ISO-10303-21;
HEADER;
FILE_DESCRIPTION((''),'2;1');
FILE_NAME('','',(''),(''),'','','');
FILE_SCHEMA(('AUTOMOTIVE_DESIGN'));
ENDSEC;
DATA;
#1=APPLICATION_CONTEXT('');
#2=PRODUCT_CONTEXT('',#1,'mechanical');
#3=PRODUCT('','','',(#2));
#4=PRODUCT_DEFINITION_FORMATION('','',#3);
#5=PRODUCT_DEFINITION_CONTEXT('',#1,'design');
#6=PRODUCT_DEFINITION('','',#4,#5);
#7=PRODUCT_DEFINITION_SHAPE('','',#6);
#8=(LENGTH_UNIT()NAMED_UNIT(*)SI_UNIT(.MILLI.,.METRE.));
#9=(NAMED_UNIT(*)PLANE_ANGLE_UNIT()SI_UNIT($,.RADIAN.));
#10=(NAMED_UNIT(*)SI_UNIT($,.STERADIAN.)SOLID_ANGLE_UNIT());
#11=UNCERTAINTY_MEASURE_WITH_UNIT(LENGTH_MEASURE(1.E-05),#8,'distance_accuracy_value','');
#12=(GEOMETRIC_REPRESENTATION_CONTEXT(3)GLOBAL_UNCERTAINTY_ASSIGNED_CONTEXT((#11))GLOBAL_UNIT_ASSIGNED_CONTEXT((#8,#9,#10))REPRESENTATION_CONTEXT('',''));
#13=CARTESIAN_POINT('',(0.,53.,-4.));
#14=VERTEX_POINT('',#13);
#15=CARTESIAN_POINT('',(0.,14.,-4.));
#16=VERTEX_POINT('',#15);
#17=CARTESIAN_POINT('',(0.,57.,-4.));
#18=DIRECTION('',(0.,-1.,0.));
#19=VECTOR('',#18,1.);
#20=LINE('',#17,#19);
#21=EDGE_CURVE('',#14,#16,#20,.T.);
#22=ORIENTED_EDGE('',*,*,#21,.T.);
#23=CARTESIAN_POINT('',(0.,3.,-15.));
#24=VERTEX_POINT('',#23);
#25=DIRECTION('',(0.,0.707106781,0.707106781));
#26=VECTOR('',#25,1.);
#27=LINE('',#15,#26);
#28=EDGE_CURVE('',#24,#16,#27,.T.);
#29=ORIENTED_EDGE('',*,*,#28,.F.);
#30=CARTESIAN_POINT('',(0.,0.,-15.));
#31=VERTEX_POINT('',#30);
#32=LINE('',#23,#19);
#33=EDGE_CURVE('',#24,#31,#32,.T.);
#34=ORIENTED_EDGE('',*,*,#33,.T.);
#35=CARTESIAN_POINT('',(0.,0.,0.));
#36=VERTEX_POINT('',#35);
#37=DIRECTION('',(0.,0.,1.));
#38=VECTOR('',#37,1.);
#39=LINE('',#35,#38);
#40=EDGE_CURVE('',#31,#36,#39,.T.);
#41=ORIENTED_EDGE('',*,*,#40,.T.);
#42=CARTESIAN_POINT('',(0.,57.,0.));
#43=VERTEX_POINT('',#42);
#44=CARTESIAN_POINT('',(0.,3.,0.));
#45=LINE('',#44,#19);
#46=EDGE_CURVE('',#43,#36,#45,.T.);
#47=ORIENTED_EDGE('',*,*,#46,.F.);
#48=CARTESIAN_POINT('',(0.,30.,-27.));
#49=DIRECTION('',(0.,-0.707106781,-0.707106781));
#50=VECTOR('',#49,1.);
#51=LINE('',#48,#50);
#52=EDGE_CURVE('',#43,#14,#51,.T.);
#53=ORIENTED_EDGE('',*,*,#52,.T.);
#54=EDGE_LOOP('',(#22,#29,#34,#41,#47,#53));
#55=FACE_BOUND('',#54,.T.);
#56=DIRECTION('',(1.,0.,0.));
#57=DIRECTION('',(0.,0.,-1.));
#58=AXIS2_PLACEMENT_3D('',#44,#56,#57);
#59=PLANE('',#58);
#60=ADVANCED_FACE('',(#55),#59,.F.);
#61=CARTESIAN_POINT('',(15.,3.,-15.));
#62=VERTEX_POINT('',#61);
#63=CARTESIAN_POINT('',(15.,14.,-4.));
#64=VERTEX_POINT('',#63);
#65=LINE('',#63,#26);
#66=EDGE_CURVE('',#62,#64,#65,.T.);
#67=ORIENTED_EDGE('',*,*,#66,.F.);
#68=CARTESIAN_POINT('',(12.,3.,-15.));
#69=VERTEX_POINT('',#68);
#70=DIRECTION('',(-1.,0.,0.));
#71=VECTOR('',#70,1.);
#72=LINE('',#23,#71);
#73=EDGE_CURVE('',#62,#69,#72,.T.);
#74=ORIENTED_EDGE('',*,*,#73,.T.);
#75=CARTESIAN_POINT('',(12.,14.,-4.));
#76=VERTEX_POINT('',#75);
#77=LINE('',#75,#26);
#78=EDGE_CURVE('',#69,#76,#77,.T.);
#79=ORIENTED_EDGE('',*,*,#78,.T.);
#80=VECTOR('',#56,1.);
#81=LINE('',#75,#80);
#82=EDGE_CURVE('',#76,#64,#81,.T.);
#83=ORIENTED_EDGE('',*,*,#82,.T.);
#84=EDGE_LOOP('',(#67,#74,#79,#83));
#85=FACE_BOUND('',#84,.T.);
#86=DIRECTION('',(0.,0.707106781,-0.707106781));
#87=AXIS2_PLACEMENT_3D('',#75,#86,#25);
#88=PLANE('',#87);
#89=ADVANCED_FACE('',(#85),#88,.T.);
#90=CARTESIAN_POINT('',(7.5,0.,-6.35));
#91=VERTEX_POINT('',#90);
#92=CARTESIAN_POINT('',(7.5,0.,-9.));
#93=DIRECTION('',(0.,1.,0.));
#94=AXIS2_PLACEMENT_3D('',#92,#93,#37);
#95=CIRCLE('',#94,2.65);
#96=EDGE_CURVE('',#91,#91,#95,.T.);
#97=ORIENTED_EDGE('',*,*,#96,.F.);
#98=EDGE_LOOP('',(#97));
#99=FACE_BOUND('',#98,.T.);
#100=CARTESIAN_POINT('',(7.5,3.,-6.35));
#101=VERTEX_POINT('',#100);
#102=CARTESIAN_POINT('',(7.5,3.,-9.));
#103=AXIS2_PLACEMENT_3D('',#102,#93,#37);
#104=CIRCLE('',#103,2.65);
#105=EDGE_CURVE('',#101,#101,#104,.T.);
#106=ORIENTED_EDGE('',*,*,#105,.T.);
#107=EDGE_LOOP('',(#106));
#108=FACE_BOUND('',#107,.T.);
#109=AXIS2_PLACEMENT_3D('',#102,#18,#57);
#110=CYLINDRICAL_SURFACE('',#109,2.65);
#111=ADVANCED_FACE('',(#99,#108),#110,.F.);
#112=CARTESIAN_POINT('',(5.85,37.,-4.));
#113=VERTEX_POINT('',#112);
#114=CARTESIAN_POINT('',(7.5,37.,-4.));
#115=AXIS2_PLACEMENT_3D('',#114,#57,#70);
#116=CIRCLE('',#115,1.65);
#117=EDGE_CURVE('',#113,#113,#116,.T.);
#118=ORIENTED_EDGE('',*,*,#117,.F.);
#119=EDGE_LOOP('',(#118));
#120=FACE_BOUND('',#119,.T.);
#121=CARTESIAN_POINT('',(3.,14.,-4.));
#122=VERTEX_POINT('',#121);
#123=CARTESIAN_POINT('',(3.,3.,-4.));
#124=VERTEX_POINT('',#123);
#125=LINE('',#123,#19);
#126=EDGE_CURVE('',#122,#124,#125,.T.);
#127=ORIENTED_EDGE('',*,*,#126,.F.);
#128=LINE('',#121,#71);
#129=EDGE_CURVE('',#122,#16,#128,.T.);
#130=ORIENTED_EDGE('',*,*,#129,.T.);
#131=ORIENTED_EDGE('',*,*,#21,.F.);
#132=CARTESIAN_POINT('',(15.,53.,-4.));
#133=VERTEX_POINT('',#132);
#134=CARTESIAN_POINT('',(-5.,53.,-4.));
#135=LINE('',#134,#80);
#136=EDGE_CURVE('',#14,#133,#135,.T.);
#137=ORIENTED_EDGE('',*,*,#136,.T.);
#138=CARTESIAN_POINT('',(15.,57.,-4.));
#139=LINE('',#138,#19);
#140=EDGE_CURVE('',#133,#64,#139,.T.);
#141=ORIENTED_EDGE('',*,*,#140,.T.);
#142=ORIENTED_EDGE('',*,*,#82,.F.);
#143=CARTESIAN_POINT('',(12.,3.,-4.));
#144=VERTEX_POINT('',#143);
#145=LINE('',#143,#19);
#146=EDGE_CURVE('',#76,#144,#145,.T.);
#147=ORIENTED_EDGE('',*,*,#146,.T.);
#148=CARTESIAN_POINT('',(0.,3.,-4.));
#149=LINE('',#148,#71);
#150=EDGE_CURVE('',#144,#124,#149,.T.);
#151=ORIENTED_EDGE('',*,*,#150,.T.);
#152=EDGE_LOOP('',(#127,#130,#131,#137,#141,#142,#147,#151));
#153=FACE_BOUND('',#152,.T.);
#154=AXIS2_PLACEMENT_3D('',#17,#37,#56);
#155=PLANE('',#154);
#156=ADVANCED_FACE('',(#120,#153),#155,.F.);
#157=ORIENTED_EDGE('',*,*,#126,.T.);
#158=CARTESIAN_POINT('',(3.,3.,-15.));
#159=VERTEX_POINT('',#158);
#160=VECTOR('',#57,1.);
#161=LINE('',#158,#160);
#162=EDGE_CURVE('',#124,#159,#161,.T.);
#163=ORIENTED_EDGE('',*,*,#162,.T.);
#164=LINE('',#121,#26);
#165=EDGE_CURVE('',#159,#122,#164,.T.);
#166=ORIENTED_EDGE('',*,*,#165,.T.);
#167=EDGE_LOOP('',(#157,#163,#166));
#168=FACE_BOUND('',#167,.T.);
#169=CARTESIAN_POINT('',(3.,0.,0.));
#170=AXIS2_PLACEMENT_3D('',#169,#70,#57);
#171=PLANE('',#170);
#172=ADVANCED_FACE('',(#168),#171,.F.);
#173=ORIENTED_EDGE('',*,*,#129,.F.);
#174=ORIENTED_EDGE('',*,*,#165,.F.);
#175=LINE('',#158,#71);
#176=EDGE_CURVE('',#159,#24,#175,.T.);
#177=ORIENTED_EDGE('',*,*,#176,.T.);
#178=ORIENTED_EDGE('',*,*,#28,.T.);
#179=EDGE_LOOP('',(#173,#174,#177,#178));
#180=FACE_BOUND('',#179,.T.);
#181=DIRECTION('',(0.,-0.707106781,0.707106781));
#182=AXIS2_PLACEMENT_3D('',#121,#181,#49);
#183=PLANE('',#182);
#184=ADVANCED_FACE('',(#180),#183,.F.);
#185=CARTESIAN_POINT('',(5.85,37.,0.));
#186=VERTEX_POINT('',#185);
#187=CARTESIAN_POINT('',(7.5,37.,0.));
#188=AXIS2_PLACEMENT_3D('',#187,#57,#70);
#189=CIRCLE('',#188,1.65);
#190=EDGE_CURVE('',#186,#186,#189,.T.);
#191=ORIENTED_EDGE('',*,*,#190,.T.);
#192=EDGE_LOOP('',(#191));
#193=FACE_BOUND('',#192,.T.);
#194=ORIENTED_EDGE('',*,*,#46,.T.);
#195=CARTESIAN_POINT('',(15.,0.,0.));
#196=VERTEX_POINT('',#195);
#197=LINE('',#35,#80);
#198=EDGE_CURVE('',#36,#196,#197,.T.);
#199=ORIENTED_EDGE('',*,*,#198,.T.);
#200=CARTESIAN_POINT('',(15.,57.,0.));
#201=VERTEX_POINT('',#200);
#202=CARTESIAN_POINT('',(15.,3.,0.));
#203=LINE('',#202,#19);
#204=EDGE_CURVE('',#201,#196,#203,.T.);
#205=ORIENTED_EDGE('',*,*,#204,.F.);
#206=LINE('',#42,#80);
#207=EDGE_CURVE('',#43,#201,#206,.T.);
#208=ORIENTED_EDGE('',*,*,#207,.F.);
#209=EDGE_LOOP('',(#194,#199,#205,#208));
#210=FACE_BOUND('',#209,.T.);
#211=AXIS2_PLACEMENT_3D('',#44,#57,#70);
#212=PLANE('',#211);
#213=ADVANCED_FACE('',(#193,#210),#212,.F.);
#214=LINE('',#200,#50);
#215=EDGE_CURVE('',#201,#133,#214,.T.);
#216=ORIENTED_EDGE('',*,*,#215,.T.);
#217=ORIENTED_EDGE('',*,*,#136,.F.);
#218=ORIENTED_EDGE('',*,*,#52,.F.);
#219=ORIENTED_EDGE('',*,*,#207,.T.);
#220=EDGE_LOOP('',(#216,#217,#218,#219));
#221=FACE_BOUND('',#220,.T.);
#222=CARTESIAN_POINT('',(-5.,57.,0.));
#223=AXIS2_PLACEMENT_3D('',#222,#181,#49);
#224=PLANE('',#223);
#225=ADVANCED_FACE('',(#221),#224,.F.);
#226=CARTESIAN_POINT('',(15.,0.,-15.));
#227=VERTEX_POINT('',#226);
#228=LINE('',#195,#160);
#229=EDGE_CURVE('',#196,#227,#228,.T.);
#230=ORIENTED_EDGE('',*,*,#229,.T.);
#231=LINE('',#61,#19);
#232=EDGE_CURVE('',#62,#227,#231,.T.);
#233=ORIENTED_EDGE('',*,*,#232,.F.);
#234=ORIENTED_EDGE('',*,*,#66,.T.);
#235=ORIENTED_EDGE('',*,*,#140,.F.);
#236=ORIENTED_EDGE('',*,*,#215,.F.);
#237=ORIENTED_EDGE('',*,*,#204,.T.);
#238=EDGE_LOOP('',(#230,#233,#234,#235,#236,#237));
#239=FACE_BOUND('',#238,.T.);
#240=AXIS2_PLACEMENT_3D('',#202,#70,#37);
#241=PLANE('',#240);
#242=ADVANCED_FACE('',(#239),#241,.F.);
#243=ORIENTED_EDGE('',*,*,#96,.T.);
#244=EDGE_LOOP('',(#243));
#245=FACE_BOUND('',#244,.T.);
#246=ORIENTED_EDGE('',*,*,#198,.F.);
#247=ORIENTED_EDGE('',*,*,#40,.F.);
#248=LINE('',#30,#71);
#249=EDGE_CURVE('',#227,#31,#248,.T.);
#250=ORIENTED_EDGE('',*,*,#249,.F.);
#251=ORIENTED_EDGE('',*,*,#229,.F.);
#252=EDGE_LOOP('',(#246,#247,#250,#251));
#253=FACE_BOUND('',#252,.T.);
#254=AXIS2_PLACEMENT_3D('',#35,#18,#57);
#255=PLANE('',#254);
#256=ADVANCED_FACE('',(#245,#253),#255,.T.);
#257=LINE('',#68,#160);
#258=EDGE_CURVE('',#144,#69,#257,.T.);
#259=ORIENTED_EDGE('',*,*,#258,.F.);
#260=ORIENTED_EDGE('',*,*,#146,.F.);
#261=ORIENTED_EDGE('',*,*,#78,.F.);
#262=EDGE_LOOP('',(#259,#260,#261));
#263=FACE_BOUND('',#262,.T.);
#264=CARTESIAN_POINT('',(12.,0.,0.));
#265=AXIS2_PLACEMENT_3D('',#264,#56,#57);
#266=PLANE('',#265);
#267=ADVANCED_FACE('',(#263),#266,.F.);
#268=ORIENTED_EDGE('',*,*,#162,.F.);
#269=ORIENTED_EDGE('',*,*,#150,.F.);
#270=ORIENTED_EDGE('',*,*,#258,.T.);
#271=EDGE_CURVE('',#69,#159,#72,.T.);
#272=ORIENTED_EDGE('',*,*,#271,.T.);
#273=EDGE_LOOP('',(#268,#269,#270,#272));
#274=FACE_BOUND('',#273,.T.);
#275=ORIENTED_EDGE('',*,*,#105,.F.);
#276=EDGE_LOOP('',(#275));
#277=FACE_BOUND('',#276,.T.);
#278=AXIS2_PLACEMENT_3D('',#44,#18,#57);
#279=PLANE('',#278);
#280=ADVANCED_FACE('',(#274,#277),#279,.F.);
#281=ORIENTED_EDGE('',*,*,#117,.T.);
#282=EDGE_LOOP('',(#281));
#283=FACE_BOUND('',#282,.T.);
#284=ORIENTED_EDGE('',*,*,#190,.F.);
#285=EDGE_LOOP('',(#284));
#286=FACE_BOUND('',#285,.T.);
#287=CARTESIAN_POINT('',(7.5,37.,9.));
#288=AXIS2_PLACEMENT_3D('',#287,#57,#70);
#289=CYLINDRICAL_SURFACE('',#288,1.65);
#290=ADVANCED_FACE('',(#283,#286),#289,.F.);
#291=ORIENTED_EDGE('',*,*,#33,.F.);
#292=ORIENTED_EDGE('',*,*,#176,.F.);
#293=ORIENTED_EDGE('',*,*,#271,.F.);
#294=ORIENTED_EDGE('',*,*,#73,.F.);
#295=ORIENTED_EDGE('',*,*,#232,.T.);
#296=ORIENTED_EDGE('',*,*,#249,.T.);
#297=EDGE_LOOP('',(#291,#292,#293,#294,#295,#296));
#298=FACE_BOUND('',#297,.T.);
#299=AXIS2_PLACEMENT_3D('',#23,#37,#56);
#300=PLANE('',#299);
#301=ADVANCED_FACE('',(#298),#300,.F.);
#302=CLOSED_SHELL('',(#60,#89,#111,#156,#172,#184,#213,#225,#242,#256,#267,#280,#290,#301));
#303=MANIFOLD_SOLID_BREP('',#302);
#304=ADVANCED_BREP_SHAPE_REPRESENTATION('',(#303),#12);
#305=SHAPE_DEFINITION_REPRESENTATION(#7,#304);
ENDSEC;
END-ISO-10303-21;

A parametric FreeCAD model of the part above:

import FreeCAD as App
import Part
import Sketcher
Q = App.Units.Quantity

doc = App.newDocument("Part")
body = doc.addObject("PartDesign::Body", "Body")

sketch1 = doc.addObject("Sketcher::SketchObject", "Sketch")
body.addObject(sketch1)
sketch1.AttachmentSupport = (doc.XZ_Plane, [""])
sketch1.MapMode = "FlatFace"
sketch1.addGeometry(Part.LineSegment(App.Vector(0, -15, 0), App.Vector(0, 0, 0)), False)
sketch1.addGeometry(Part.LineSegment(App.Vector(0, 0, 0), App.Vector(15, 0, 0)), False)
sketch1.addGeometry(Part.LineSegment(App.Vector(15, 0, 0), App.Vector(15, -15, 0)), False)
sketch1.addGeometry(Part.LineSegment(App.Vector(15, -15, 0), App.Vector(0, -15, 0)), False)
sketch1.addGeometry(Part.Circle(App.Vector(7.5, -9, 0), App.Vector(0, 0, 1), 2.65), False)
sketch1.addConstraint(Sketcher.Constraint("Coincident", 0, 2, 1, 1))
sketch1.addConstraint(Sketcher.Constraint("Coincident", 1, 2, 2, 1))
sketch1.addConstraint(Sketcher.Constraint("Coincident", 2, 2, 3, 1))
sketch1.addConstraint(Sketcher.Constraint("Coincident", 3, 2, 0, 1))
sketch1.addConstraint(Sketcher.Constraint("Vertical", 0))
sketch1.addConstraint(Sketcher.Constraint("Horizontal", 1))
sketch1.addConstraint(Sketcher.Constraint("Vertical", 2))
sketch1.addConstraint(Sketcher.Constraint("Horizontal", 3))
sketch1.addConstraint(Sketcher.Constraint("Coincident", 0, 2, -1, 1))
sketch1.addConstraint(Sketcher.Constraint("Equal", 3, 0))
sketch1.addConstraint(Sketcher.Constraint("Diameter", 4, Q("5.3 mm")))
sketch1.addConstraint(Sketcher.Constraint("DistanceX", 1, 1, 1, 2, Q("15 mm")))
sketch1.addConstraint(Sketcher.Constraint("DistanceY", 4, 3, -1, 1, Q("9 mm")))
sketch1.addConstraint(Sketcher.Constraint("DistanceX", -1, 1, 4, 3, Q("7.5 mm")))
pad1 = doc.addObject("PartDesign::Pad", "Pad")
body.addObject(pad1)
pad1.Profile = sketch1
pad1.Length = 3
pad1.Reversed = True

sketch2 = doc.addObject("Sketcher::SketchObject", "Sketch001")
body.addObject(sketch2)
sketch2.AttachmentSupport = (doc.XZ_Plane, [""])
sketch2.MapMode = "FlatFace"
sketch2.AttachmentOffset = App.Placement(App.Vector(0, 0, -3), App.Rotation())
sketch2.addGeometry(Part.LineSegment(App.Vector(0, -4, 0), App.Vector(0, 0, 0)), False)
sketch2.addGeometry(Part.LineSegment(App.Vector(0, 0, 0), App.Vector(15, 0, 0)), False)
sketch2.addGeometry(Part.LineSegment(App.Vector(15, 0, 0), App.Vector(15, -4, 0)), False)
sketch2.addGeometry(Part.LineSegment(App.Vector(15, -4, 0), App.Vector(0, -4, 0)), False)
sketch2.addConstraint(Sketcher.Constraint("Coincident", 0, 2, 1, 1))
sketch2.addConstraint(Sketcher.Constraint("Coincident", 1, 2, 2, 1))
sketch2.addConstraint(Sketcher.Constraint("Coincident", 2, 2, 3, 1))
sketch2.addConstraint(Sketcher.Constraint("Coincident", 3, 2, 0, 1))
sketch2.addConstraint(Sketcher.Constraint("Vertical", 0))
sketch2.addConstraint(Sketcher.Constraint("Horizontal", 1))
sketch2.addConstraint(Sketcher.Constraint("Vertical", 2))
sketch2.addConstraint(Sketcher.Constraint("Horizontal", 3))
sketch2.addConstraint(Sketcher.Constraint("Coincident", 0, 2, -1, 1))
sketch2.addConstraint(Sketcher.Constraint("DistanceX", 1, 1, 1, 2, Q("15 mm")))
sketch2.addConstraint(Sketcher.Constraint("DistanceY", 0, 1, 0, 2, Q("4 mm")))
pad2 = doc.addObject("PartDesign::Pad", "Pad001")
body.addObject(pad2)
pad2.Profile = sketch2
pad2.Length = 54
pad2.Reversed = True

sketch3 = doc.addObject("Sketcher::SketchObject", "Sketch002")
body.addObject(sketch3)
sketch3.AttachmentSupport = (doc.YZ_Plane, [""])
sketch3.MapMode = "FlatFace"
sketch3.AttachmentOffset = App.Placement(App.Vector(0, 0, 15), App.Rotation())
sketch3.addGeometry(Part.LineSegment(App.Vector(3, -15, 0), App.Vector(14, -4, 0)), False)
sketch3.addGeometry(Part.LineSegment(App.Vector(14, -4, 0), App.Vector(3, -4, 0)), False)
sketch3.addGeometry(Part.LineSegment(App.Vector(3, -4, 0), App.Vector(3, -15, 0)), False)
sketch3.addConstraint(Sketcher.Constraint("Coincident", 0, 2, 1, 1))
sketch3.addConstraint(Sketcher.Constraint("Coincident", 1, 2, 2, 1))
sketch3.addConstraint(Sketcher.Constraint("Coincident", 2, 2, 0, 1))
sketch3.addConstraint(Sketcher.Constraint("Horizontal", 1))
sketch3.addConstraint(Sketcher.Constraint("Vertical", 2))
sketch3.addConstraint(Sketcher.Constraint("Equal", 1, 2))
sketch3.addConstraint(Sketcher.Constraint("DistanceX", 1, 2, 1, 1, Q("11 mm")))
sketch3.addConstraint(Sketcher.Constraint("DistanceX", -1, 1, 0, 2, Q("14 mm")))
sketch3.addConstraint(Sketcher.Constraint("DistanceY", 0, 2, -1, 1, Q("4 mm")))
pad3 = doc.addObject("PartDesign::Pad", "Pad002")
body.addObject(pad3)
pad3.Profile = sketch3
pad3.Length = 3
pad3.Reversed = True
doc.recompute()

datumplane = doc.addObject("PartDesign::Plane", "DatumPlane")
body.addObject(datumplane)
datumplane.AttachmentSupport = (doc.YZ_Plane, [""])
datumplane.MapMode = "FlatFace"
datumplane.AttachmentOffset = App.Placement(App.Vector(0, 0, 7.5), App.Rotation())
mirrored = doc.addObject("PartDesign::Mirrored", "Mirrored")
body.addObject(mirrored)
mirrored.Originals = [pad3]
mirrored.MirrorPlane = (datumplane, [""])
body.Tip = mirrored

sketch4 = doc.addObject("Sketcher::SketchObject", "Sketch003")
body.addObject(sketch4)
sketch4.AttachmentSupport = (doc.XY_Plane, [""])
sketch4.MapMode = "FlatFace"
sketch4.AttachmentOffset = App.Placement(App.Vector(0, 0, -4), App.Rotation())
sketch4.addGeometry(Part.Circle(App.Vector(7.5, 37, 0), App.Vector(0, 0, 1), 1.65), False)
sketch4.addConstraint(Sketcher.Constraint("Diameter", 0, Q("3.3 mm")))
sketch4.addConstraint(Sketcher.Constraint("DistanceY", -1, 1, 0, 3, Q("37 mm")))
sketch4.addConstraint(Sketcher.Constraint("DistanceX", -1, 1, 0, 3, Q("7.5 mm")))
pocket1 = doc.addObject("PartDesign::Pocket", "Pocket")
body.addObject(pocket1)
pocket1.Profile = sketch4
pocket1.Length = 13
pocket1.Reversed = True

sketch5 = doc.addObject("Sketcher::SketchObject", "Sketch004")
body.addObject(sketch5)
sketch5.AttachmentSupport = (doc.YZ_Plane, [""])
sketch5.MapMode = "FlatFace"
sketch5.AttachmentOffset = App.Placement(App.Vector(0, 0, 15), App.Rotation())
sketch5.addGeometry(Part.LineSegment(App.Vector(57, 0, 0), App.Vector(53, -4, 0)), False)
sketch5.addGeometry(Part.LineSegment(App.Vector(53, -4, 0), App.Vector(57, -4, 0)), False)
sketch5.addGeometry(Part.LineSegment(App.Vector(57, -4, 0), App.Vector(57, 0, 0)), False)
sketch5.addConstraint(Sketcher.Constraint("Coincident", 0, 2, 1, 1))
sketch5.addConstraint(Sketcher.Constraint("Coincident", 1, 2, 2, 1))
sketch5.addConstraint(Sketcher.Constraint("Coincident", 2, 2, 0, 1))
sketch5.addConstraint(Sketcher.Constraint("Horizontal", 1))
sketch5.addConstraint(Sketcher.Constraint("Vertical", 2))
sketch5.addConstraint(Sketcher.Constraint("PointOnObject", 2, 2, -1))
sketch5.addConstraint(Sketcher.Constraint("Equal", 1, 2))
sketch5.addConstraint(Sketcher.Constraint("DistanceX", 1, 1, 1, 2, Q("4 mm")))
sketch5.addConstraint(Sketcher.Constraint("DistanceX", -1, 1, 0, 2, Q("53 mm")))
pocket2 = doc.addObject("PartDesign::Pocket", "Pocket001")
body.addObject(pocket2)
pocket2.Profile = sketch5
pocket2.Length = 20

doc.recompute()
